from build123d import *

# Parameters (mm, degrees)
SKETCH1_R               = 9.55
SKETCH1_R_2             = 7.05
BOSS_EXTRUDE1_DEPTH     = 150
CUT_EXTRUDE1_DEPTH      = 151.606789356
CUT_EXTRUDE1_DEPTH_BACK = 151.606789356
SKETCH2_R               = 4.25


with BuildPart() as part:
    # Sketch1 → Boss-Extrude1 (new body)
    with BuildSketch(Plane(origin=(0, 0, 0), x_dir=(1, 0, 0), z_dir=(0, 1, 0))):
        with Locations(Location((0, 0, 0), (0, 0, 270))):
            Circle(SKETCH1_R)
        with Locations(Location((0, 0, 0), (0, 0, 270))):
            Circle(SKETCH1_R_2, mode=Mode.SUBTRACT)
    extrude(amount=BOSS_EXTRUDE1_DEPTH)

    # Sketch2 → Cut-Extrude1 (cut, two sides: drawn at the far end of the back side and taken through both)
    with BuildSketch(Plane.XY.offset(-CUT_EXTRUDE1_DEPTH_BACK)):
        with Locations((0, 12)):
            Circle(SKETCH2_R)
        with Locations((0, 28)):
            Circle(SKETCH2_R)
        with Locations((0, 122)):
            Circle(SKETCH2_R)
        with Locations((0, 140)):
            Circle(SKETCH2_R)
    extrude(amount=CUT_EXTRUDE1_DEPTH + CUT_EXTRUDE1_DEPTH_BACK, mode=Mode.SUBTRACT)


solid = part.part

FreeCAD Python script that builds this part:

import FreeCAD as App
import Part
import Sketcher

V = App.Vector

doc = App.newDocument("Part")
params = doc.addObject("Spreadsheet::Sheet", "Params")
for row, (alias, value) in enumerate([
    ("sketch1_diameter", "19.1 mm"),
    ("sketch1_diameter2", "14.1 mm"),
    ("pad1_length", "150 mm"),
    ("sketch2_diameter", "8.5 mm"),
], start=1):
    params.set(f"A{row}", alias)
    params.set(f"B{row}", "=" + value)
    params.setAlias(f"B{row}", alias)

body = doc.addObject("PartDesign::Body", "Body")

sketch1 = doc.addObject("Sketcher::SketchObject", "Sketch")
body.addObject(sketch1)
sketch1.AttachmentSupport = (doc.XZ_Plane, [""])
sketch1.MapMode = "FlatFace"
sketch1.addGeometry([
    Part.Circle(V(0, 0, 0), V(0, 0, 1), 10),
    Part.Circle(V(0, 0, 0), V(0, 0, 1), 7),
], False)
sketch1.addConstraint([
    Sketcher.Constraint("Coincident", 0, 3, -1, 1),
    Sketcher.Constraint("Coincident", 1, 3, -1, 1),
    Sketcher.Constraint("Diameter", 0, 19.1),
    Sketcher.Constraint("Diameter", 1, 14.1),
])
sketch1.setExpression("Constraints[2]", "Params.sketch1_diameter")
sketch1.setExpression("Constraints[3]", "Params.sketch1_diameter2")
pad1 = doc.addObject("PartDesign::Pad", "Pad")
body.addObject(pad1)
pad1.Profile = sketch1
pad1.setExpression("Length", "Params.pad1_length")
pad1.Reversed = True

sketch2 = doc.addObject("Sketcher::SketchObject", "Sketch001")
body.addObject(sketch2)
sketch2.AttachmentSupport = (doc.XY_Plane, [""])
sketch2.MapMode = "FlatFace"
sketch2.addGeometry([
    Part.Circle(V(0, 12, 0), V(0, 0, 1), 4.2),
    Part.Circle(V(0, 28, 0), V(0, 0, 1), 4.2),
    Part.Circle(V(0, 122, 0), V(0, 0, 1), 4.2),
    Part.Circle(V(0, 140, 0), V(0, 0, 1), 4.2),
], False)
sketch2.addConstraint([
    Sketcher.Constraint("Equal", 0, 1),
    Sketcher.Constraint("Equal", 1, 2),
    Sketcher.Constraint("Equal", 2, 3),
    Sketcher.Constraint("PointOnObject", 0, 3, -2),
    Sketcher.Constraint("PointOnObject", 1, 3, -2),
    Sketcher.Constraint("PointOnObject", 2, 3, -2),
    Sketcher.Constraint("PointOnObject", 3, 3, -2),
    Sketcher.Constraint("Diameter", 0, 8.5),
    Sketcher.Constraint("DistanceY", -1, 1, 0, 3, 12.0),
    Sketcher.Constraint("DistanceY", -1, 1, 1, 3, 28.0),
    Sketcher.Constraint("DistanceY", -1, 1, 2, 3, 122.0),
    Sketcher.Constraint("DistanceY", -1, 1, 3, 3, 140.0),
])
sketch2.setExpression("Constraints[7]", "Params.sketch2_diameter")
pocket1 = doc.addObject("PartDesign::Pocket", "Pocket")
body.addObject(pocket1)
pocket1.Profile = sketch2
pocket1.Type = "ThroughAll"
pocket1.Midplane = True

doc.recompute()
